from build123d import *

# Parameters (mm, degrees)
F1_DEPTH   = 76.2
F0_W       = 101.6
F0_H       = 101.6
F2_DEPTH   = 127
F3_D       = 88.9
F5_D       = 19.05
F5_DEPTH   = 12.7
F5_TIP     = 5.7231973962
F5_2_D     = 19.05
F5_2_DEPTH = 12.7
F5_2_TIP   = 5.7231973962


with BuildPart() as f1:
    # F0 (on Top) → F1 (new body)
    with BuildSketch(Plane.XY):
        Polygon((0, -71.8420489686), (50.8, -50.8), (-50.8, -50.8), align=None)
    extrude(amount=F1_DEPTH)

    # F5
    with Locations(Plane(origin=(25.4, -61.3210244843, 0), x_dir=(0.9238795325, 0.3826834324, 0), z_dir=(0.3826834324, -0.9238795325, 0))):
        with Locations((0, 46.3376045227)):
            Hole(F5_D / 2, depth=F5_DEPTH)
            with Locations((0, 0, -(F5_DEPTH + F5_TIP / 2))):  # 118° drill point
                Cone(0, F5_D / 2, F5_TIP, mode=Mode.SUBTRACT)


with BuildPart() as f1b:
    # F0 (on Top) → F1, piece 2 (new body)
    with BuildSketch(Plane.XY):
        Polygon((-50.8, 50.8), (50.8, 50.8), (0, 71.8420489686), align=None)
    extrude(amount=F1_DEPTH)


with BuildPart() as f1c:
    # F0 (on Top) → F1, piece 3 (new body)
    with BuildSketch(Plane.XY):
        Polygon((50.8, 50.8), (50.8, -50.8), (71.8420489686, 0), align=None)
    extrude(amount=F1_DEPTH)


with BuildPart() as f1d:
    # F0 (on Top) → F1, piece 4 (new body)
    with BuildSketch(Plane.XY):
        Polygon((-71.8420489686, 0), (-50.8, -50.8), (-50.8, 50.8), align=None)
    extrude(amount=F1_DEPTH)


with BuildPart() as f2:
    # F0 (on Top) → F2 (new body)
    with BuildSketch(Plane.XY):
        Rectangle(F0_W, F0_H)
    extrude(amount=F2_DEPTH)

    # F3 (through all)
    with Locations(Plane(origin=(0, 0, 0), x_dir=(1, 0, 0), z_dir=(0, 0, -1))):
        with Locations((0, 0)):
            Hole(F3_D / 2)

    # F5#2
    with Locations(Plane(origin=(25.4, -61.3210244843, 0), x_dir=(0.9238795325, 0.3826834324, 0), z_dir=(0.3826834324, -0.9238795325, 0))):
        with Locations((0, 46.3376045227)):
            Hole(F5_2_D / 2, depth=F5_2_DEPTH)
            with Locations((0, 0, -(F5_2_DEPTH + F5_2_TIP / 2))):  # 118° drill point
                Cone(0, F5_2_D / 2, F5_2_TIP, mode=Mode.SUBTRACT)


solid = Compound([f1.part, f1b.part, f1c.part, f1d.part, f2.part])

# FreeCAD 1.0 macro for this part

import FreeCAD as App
import Part
import Sketcher
Q = App.Units.Quantity

doc = App.newDocument("Part")
body = doc.addObject("PartDesign::Body", "Body")

# Sketch on XY plane
sketch1 = body.newObject("Sketcher::SketchObject", "Sketch")
sketch1.AttachmentSupport = (doc.getObject("XY_Plane"), [""])
sketch1.MapMode = "FlatFace"
sketch1.addGeometry(Part.LineSegment(App.Vector(0, -72, 0), App.Vector(51, -51, 0)), False)
sketch1.addGeometry(Part.LineSegment(App.Vector(51, -51, 0), App.Vector(-51, -51, 0)), False)
sketch1.addGeometry(Part.LineSegment(App.Vector(-51, -51, 0), App.Vector(0, -72, 0)), False)
sketch1.addConstraint(Sketcher.Constraint("Coincident", 0, 2, 1, 1))
sketch1.addConstraint(Sketcher.Constraint("Coincident", 1, 2, 2, 1))
sketch1.addConstraint(Sketcher.Constraint("Coincident", 2, 2, 0, 1))
sketch1.addConstraint(Sketcher.Constraint("Horizontal", 1))
sketch1.addConstraint(Sketcher.Constraint("PointOnObject", 2, 2, -2))
sketch1.addConstraint(Sketcher.Constraint("Equal", 0, 2))
sketch1.addConstraint(Sketcher.Constraint("DistanceX", 1, 2, 1, 1, Q("4 in")))
sketch1.addConstraint(Sketcher.Constraint("DistanceY", 0, 2, -1, 1, Q("2 in")))
sketch1.addConstraint(Sketcher.Constraint("Angle", 0, Q("22.5 deg")))
pad1 = body.newObject("PartDesign::Pad", "Pad")
pad1.Profile = sketch1
pad1.Length = Q("3 in")

# Sketch on an angled plane
sketch2 = body.newObject("Sketcher::SketchObject", "Sketch001")
sketch2.Placement = App.Placement(App.Vector(25.4, -61.321024, 0), App.Rotation(App.Vector(0.923879532, 0.382683432, 0), App.Vector(0, 0, 0.999999999), App.Vector(0.382683432, -0.923879532, 0), "ZXY"))
sketch2.addGeometry(Part.Circle(App.Vector(0, 46, 0), App.Vector(0, 0, 1), 10), False)
sketch2.addConstraint(Sketcher.Constraint("PointOnObject", 0, 3, -2))
sketch2.addConstraint(Sketcher.Constraint("Diameter", 0, Q("0.75 in")))
sketch2.addConstraint(Sketcher.Constraint("DistanceY", -1, 1, 0, 3, 46.337604))
doc.recompute()
hole = body.newObject("PartDesign::Hole", "Hole")
hole.Profile = sketch2
hole.ThreadType = "None"
hole.Diameter = Q("0.75 in")
hole.DepthType = "Dimension"
hole.Depth = Q("0.5 in")
hole.DrillPoint = "Angled"
hole.DrillPointAngle = 118
body2 = doc.addObject("PartDesign::Body", "Body001")

# Sketch on XY plane
sketch3 = body2.newObject("Sketcher::SketchObject", "Sketch002")
sketch3.AttachmentSupport = (doc.getObject("XY_Plane001"), [""])
sketch3.MapMode = "FlatFace"
sketch3.addGeometry(Part.LineSegment(App.Vector(-51, 51, 0), App.Vector(51, 51, 0)), False)
sketch3.addGeometry(Part.LineSegment(App.Vector(51, 51, 0), App.Vector(0, 72, 0)), False)
sketch3.addGeometry(Part.LineSegment(App.Vector(0, 72, 0), App.Vector(-51, 51, 0)), False)
sketch3.addConstraint(Sketcher.Constraint("Coincident", 0, 2, 1, 1))
sketch3.addConstraint(Sketcher.Constraint("Coincident", 1, 2, 2, 1))
sketch3.addConstraint(Sketcher.Constraint("Coincident", 2, 2, 0, 1))
sketch3.addConstraint(Sketcher.Constraint("Horizontal", 0))
sketch3.addConstraint(Sketcher.Constraint("PointOnObject", 1, 2, -2))
sketch3.addConstraint(Sketcher.Constraint("Equal", 1, 2))
sketch3.addConstraint(Sketcher.Constraint("DistanceX", 0, 1, 0, 2, Q("4 in")))
sketch3.addConstraint(Sketcher.Constraint("DistanceY", -1, 1, 0, 2, Q("2 in")))
sketch3.addConstraint(Sketcher.Constraint("Angle", 1, Q("157.5 deg")))
pad2 = body2.newObject("PartDesign::Pad", "Pad001")
pad2.Profile = sketch3
pad2.Length = Q("3 in")
body3 = doc.addObject("PartDesign::Body", "Body002")

# Sketch on XY plane
sketch4 = body3.newObject("Sketcher::SketchObject", "Sketch003")
sketch4.AttachmentSupport = (doc.getObject("XY_Plane002"), [""])
sketch4.MapMode = "FlatFace"
sketch4.addGeometry(Part.LineSegment(App.Vector(51, 51, 0), App.Vector(51, -51, 0)), False)
sketch4.addGeometry(Part.LineSegment(App.Vector(51, -51, 0), App.Vector(72, 0, 0)), False)
sketch4.addGeometry(Part.LineSegment(App.Vector(72, 0, 0), App.Vector(51, 51, 0)), False)
sketch4.addConstraint(Sketcher.Constraint("Coincident", 0, 2, 1, 1))
sketch4.addConstraint(Sketcher.Constraint("Coincident", 1, 2, 2, 1))
sketch4.addConstraint(Sketcher.Constraint("Coincident", 2, 2, 0, 1))
sketch4.addConstraint(Sketcher.Constraint("Vertical", 0))
sketch4.addConstraint(Sketcher.Constraint("PointOnObject", 1, 2, -1))
sketch4.addConstraint(Sketcher.Constraint("Equal", 1, 2))
sketch4.addConstraint(Sketcher.Constraint("DistanceY", 0, 2, 0, 1, Q("4 in")))
sketch4.addConstraint(Sketcher.Constraint("DistanceX", -1, 1, 0, 2, Q("2 in")))
sketch4.addConstraint(Sketcher.Constraint("Angle", 1, Q("67.5 deg")))
pad3 = body3.newObject("PartDesign::Pad", "Pad002")
pad3.Profile = sketch4
pad3.Length = Q("3 in")
body4 = doc.addObject("PartDesign::Body", "Body003")

# Sketch on XY plane
sketch5 = body4.newObject("Sketcher::SketchObject", "Sketch004")
sketch5.AttachmentSupport = (doc.getObject("XY_Plane003"), [""])
sketch5.MapMode = "FlatFace"
sketch5.addGeometry(Part.LineSegment(App.Vector(-72, 0, 0), App.Vector(-51, -51, 0)), False)
sketch5.addGeometry(Part.LineSegment(App.Vector(-51, -51, 0), App.Vector(-51, 51, 0)), False)
sketch5.addGeometry(Part.LineSegment(App.Vector(-51, 51, 0), App.Vector(-72, 0, 0)), False)
sketch5.addConstraint(Sketcher.Constraint("Coincident", 0, 2, 1, 1))
sketch5.addConstraint(Sketcher.Constraint("Coincident", 1, 2, 2, 1))
sketch5.addConstraint(Sketcher.Constraint("Coincident", 2, 2, 0, 1))
sketch5.addConstraint(Sketcher.Constraint("Vertical", 1))
sketch5.addConstraint(Sketcher.Constraint("PointOnObject", 2, 2, -1))
sketch5.addConstraint(Sketcher.Constraint("Equal", 0, 2))
sketch5.addConstraint(Sketcher.Constraint("DistanceY", 1, 1, 1, 2, Q("4 in")))
sketch5.addConstraint(Sketcher.Constraint("DistanceX", 0, 2, -1, 1, Q("2 in")))
sketch5.addConstraint(Sketcher.Constraint("Angle", 0, Q("-67.5 deg")))
pad4 = body4.newObject("PartDesign::Pad", "Pad003")
pad4.Profile = sketch5
pad4.Length = Q("3 in")
body5 = doc.addObject("PartDesign::Body", "Body004")

# Sketch on XY plane
sketch6 = body5.newObject("Sketcher::SketchObject", "Sketch005")
sketch6.AttachmentSupport = (doc.getObject("XY_Plane004"), [""])
sketch6.MapMode = "FlatFace"
sketch6.addGeometry(Part.LineSegment(App.Vector(-51, 51, 0), App.Vector(-51, -51, 0)), False)
sketch6.addGeometry(Part.LineSegment(App.Vector(-51, -51, 0), App.Vector(51, -51, 0)), False)
sketch6.addGeometry(Part.LineSegment(App.Vector(51, -51, 0), App.Vector(51, 51, 0)), False)
sketch6.addGeometry(Part.LineSegment(App.Vector(51, 51, 0), App.Vector(-51, 51, 0)), False)
sketch6.addConstraint(Sketcher.Constraint("Coincident", 0, 2, 1, 1))
sketch6.addConstraint(Sketcher.Constraint("Coincident", 1, 2, 2, 1))
sketch6.addConstraint(Sketcher.Constraint("Coincident", 2, 2, 3, 1))
sketch6.addConstraint(Sketcher.Constraint("Coincident", 3, 2, 0, 1))
sketch6.addConstraint(Sketcher.Constraint("Vertical", 0))
sketch6.addConstraint(Sketcher.Constraint("Horizontal", 1))
sketch6.addConstraint(Sketcher.Constraint("Vertical", 2))
sketch6.addConstraint(Sketcher.Constraint("Horizontal", 3))
sketch6.addConstraint(Sketcher.Constraint("Symmetric", 0, 2, 2, 2, -1, 1))
sketch6.addConstraint(Sketcher.Constraint("Equal", 3, 0))
sketch6.addConstraint(Sketcher.Constraint("DistanceX", 1, 1, 1, 2, Q("4 in")))
pad5 = body5.newObject("PartDesign::Pad", "Pad004")
pad5.Profile = sketch6
pad5.Length = Q("5 in")

# Sketch on XY plane
sketch7 = body5.newObject("Sketcher::SketchObject", "Sketch006")
sketch7.AttachmentSupport = (doc.getObject("XY_Plane004"), [""])
sketch7.MapMode = "FlatFace"
sketch7.addGeometry(Part.Circle(App.Vector(0, 0, 0), App.Vector(0, 0, 1), 44), False)
sketch7.addConstraint(Sketcher.Constraint("Coincident", 0, 3, -1, 1))
sketch7.addConstraint(Sketcher.Constraint("Diameter", 0, Q("3.5 in")))
doc.recompute()
hole2 = body5.newObject("PartDesign::Hole", "Hole001")
hole2.Profile = sketch7
hole2.ThreadType = "None"
hole2.Diameter = Q("3.5 in")
hole2.DepthType = "ThroughAll"
hole2.Reversed = True

# Sketch on an angled plane
sketch8 = body5.newObject("Sketcher::SketchObject", "Sketch007")
sketch8.Placement = App.Placement(App.Vector(25.4, -61.321024, 0), App.Rotation(App.Vector(0.923879532, 0.382683432, 0), App.Vector(0, 0, 0.999999999), App.Vector(0.382683432, -0.923879532, 0), "ZXY"))
sketch8.addGeometry(Part.Circle(App.Vector(0, 46, 0), App.Vector(0, 0, 1), 10), False)
sketch8.addConstraint(Sketcher.Constraint("PointOnObject", 0, 3, -2))
sketch8.addConstraint(Sketcher.Constraint("Diameter", 0, Q("0.75 in")))
sketch8.addConstraint(Sketcher.Constraint("DistanceY", -1, 1, 0, 3, 46.337604))
doc.recompute()
hole3 = body5.newObject("PartDesign::Hole", "Hole002")
hole3.Profile = sketch8
hole3.ThreadType = "None"
hole3.Diameter = Q("0.75 in")
hole3.DepthType = "Dimension"
hole3.Depth = Q("0.5 in")
hole3.DrillPoint = "Angled"
hole3.DrillPointAngle = 118

doc.recompute()
